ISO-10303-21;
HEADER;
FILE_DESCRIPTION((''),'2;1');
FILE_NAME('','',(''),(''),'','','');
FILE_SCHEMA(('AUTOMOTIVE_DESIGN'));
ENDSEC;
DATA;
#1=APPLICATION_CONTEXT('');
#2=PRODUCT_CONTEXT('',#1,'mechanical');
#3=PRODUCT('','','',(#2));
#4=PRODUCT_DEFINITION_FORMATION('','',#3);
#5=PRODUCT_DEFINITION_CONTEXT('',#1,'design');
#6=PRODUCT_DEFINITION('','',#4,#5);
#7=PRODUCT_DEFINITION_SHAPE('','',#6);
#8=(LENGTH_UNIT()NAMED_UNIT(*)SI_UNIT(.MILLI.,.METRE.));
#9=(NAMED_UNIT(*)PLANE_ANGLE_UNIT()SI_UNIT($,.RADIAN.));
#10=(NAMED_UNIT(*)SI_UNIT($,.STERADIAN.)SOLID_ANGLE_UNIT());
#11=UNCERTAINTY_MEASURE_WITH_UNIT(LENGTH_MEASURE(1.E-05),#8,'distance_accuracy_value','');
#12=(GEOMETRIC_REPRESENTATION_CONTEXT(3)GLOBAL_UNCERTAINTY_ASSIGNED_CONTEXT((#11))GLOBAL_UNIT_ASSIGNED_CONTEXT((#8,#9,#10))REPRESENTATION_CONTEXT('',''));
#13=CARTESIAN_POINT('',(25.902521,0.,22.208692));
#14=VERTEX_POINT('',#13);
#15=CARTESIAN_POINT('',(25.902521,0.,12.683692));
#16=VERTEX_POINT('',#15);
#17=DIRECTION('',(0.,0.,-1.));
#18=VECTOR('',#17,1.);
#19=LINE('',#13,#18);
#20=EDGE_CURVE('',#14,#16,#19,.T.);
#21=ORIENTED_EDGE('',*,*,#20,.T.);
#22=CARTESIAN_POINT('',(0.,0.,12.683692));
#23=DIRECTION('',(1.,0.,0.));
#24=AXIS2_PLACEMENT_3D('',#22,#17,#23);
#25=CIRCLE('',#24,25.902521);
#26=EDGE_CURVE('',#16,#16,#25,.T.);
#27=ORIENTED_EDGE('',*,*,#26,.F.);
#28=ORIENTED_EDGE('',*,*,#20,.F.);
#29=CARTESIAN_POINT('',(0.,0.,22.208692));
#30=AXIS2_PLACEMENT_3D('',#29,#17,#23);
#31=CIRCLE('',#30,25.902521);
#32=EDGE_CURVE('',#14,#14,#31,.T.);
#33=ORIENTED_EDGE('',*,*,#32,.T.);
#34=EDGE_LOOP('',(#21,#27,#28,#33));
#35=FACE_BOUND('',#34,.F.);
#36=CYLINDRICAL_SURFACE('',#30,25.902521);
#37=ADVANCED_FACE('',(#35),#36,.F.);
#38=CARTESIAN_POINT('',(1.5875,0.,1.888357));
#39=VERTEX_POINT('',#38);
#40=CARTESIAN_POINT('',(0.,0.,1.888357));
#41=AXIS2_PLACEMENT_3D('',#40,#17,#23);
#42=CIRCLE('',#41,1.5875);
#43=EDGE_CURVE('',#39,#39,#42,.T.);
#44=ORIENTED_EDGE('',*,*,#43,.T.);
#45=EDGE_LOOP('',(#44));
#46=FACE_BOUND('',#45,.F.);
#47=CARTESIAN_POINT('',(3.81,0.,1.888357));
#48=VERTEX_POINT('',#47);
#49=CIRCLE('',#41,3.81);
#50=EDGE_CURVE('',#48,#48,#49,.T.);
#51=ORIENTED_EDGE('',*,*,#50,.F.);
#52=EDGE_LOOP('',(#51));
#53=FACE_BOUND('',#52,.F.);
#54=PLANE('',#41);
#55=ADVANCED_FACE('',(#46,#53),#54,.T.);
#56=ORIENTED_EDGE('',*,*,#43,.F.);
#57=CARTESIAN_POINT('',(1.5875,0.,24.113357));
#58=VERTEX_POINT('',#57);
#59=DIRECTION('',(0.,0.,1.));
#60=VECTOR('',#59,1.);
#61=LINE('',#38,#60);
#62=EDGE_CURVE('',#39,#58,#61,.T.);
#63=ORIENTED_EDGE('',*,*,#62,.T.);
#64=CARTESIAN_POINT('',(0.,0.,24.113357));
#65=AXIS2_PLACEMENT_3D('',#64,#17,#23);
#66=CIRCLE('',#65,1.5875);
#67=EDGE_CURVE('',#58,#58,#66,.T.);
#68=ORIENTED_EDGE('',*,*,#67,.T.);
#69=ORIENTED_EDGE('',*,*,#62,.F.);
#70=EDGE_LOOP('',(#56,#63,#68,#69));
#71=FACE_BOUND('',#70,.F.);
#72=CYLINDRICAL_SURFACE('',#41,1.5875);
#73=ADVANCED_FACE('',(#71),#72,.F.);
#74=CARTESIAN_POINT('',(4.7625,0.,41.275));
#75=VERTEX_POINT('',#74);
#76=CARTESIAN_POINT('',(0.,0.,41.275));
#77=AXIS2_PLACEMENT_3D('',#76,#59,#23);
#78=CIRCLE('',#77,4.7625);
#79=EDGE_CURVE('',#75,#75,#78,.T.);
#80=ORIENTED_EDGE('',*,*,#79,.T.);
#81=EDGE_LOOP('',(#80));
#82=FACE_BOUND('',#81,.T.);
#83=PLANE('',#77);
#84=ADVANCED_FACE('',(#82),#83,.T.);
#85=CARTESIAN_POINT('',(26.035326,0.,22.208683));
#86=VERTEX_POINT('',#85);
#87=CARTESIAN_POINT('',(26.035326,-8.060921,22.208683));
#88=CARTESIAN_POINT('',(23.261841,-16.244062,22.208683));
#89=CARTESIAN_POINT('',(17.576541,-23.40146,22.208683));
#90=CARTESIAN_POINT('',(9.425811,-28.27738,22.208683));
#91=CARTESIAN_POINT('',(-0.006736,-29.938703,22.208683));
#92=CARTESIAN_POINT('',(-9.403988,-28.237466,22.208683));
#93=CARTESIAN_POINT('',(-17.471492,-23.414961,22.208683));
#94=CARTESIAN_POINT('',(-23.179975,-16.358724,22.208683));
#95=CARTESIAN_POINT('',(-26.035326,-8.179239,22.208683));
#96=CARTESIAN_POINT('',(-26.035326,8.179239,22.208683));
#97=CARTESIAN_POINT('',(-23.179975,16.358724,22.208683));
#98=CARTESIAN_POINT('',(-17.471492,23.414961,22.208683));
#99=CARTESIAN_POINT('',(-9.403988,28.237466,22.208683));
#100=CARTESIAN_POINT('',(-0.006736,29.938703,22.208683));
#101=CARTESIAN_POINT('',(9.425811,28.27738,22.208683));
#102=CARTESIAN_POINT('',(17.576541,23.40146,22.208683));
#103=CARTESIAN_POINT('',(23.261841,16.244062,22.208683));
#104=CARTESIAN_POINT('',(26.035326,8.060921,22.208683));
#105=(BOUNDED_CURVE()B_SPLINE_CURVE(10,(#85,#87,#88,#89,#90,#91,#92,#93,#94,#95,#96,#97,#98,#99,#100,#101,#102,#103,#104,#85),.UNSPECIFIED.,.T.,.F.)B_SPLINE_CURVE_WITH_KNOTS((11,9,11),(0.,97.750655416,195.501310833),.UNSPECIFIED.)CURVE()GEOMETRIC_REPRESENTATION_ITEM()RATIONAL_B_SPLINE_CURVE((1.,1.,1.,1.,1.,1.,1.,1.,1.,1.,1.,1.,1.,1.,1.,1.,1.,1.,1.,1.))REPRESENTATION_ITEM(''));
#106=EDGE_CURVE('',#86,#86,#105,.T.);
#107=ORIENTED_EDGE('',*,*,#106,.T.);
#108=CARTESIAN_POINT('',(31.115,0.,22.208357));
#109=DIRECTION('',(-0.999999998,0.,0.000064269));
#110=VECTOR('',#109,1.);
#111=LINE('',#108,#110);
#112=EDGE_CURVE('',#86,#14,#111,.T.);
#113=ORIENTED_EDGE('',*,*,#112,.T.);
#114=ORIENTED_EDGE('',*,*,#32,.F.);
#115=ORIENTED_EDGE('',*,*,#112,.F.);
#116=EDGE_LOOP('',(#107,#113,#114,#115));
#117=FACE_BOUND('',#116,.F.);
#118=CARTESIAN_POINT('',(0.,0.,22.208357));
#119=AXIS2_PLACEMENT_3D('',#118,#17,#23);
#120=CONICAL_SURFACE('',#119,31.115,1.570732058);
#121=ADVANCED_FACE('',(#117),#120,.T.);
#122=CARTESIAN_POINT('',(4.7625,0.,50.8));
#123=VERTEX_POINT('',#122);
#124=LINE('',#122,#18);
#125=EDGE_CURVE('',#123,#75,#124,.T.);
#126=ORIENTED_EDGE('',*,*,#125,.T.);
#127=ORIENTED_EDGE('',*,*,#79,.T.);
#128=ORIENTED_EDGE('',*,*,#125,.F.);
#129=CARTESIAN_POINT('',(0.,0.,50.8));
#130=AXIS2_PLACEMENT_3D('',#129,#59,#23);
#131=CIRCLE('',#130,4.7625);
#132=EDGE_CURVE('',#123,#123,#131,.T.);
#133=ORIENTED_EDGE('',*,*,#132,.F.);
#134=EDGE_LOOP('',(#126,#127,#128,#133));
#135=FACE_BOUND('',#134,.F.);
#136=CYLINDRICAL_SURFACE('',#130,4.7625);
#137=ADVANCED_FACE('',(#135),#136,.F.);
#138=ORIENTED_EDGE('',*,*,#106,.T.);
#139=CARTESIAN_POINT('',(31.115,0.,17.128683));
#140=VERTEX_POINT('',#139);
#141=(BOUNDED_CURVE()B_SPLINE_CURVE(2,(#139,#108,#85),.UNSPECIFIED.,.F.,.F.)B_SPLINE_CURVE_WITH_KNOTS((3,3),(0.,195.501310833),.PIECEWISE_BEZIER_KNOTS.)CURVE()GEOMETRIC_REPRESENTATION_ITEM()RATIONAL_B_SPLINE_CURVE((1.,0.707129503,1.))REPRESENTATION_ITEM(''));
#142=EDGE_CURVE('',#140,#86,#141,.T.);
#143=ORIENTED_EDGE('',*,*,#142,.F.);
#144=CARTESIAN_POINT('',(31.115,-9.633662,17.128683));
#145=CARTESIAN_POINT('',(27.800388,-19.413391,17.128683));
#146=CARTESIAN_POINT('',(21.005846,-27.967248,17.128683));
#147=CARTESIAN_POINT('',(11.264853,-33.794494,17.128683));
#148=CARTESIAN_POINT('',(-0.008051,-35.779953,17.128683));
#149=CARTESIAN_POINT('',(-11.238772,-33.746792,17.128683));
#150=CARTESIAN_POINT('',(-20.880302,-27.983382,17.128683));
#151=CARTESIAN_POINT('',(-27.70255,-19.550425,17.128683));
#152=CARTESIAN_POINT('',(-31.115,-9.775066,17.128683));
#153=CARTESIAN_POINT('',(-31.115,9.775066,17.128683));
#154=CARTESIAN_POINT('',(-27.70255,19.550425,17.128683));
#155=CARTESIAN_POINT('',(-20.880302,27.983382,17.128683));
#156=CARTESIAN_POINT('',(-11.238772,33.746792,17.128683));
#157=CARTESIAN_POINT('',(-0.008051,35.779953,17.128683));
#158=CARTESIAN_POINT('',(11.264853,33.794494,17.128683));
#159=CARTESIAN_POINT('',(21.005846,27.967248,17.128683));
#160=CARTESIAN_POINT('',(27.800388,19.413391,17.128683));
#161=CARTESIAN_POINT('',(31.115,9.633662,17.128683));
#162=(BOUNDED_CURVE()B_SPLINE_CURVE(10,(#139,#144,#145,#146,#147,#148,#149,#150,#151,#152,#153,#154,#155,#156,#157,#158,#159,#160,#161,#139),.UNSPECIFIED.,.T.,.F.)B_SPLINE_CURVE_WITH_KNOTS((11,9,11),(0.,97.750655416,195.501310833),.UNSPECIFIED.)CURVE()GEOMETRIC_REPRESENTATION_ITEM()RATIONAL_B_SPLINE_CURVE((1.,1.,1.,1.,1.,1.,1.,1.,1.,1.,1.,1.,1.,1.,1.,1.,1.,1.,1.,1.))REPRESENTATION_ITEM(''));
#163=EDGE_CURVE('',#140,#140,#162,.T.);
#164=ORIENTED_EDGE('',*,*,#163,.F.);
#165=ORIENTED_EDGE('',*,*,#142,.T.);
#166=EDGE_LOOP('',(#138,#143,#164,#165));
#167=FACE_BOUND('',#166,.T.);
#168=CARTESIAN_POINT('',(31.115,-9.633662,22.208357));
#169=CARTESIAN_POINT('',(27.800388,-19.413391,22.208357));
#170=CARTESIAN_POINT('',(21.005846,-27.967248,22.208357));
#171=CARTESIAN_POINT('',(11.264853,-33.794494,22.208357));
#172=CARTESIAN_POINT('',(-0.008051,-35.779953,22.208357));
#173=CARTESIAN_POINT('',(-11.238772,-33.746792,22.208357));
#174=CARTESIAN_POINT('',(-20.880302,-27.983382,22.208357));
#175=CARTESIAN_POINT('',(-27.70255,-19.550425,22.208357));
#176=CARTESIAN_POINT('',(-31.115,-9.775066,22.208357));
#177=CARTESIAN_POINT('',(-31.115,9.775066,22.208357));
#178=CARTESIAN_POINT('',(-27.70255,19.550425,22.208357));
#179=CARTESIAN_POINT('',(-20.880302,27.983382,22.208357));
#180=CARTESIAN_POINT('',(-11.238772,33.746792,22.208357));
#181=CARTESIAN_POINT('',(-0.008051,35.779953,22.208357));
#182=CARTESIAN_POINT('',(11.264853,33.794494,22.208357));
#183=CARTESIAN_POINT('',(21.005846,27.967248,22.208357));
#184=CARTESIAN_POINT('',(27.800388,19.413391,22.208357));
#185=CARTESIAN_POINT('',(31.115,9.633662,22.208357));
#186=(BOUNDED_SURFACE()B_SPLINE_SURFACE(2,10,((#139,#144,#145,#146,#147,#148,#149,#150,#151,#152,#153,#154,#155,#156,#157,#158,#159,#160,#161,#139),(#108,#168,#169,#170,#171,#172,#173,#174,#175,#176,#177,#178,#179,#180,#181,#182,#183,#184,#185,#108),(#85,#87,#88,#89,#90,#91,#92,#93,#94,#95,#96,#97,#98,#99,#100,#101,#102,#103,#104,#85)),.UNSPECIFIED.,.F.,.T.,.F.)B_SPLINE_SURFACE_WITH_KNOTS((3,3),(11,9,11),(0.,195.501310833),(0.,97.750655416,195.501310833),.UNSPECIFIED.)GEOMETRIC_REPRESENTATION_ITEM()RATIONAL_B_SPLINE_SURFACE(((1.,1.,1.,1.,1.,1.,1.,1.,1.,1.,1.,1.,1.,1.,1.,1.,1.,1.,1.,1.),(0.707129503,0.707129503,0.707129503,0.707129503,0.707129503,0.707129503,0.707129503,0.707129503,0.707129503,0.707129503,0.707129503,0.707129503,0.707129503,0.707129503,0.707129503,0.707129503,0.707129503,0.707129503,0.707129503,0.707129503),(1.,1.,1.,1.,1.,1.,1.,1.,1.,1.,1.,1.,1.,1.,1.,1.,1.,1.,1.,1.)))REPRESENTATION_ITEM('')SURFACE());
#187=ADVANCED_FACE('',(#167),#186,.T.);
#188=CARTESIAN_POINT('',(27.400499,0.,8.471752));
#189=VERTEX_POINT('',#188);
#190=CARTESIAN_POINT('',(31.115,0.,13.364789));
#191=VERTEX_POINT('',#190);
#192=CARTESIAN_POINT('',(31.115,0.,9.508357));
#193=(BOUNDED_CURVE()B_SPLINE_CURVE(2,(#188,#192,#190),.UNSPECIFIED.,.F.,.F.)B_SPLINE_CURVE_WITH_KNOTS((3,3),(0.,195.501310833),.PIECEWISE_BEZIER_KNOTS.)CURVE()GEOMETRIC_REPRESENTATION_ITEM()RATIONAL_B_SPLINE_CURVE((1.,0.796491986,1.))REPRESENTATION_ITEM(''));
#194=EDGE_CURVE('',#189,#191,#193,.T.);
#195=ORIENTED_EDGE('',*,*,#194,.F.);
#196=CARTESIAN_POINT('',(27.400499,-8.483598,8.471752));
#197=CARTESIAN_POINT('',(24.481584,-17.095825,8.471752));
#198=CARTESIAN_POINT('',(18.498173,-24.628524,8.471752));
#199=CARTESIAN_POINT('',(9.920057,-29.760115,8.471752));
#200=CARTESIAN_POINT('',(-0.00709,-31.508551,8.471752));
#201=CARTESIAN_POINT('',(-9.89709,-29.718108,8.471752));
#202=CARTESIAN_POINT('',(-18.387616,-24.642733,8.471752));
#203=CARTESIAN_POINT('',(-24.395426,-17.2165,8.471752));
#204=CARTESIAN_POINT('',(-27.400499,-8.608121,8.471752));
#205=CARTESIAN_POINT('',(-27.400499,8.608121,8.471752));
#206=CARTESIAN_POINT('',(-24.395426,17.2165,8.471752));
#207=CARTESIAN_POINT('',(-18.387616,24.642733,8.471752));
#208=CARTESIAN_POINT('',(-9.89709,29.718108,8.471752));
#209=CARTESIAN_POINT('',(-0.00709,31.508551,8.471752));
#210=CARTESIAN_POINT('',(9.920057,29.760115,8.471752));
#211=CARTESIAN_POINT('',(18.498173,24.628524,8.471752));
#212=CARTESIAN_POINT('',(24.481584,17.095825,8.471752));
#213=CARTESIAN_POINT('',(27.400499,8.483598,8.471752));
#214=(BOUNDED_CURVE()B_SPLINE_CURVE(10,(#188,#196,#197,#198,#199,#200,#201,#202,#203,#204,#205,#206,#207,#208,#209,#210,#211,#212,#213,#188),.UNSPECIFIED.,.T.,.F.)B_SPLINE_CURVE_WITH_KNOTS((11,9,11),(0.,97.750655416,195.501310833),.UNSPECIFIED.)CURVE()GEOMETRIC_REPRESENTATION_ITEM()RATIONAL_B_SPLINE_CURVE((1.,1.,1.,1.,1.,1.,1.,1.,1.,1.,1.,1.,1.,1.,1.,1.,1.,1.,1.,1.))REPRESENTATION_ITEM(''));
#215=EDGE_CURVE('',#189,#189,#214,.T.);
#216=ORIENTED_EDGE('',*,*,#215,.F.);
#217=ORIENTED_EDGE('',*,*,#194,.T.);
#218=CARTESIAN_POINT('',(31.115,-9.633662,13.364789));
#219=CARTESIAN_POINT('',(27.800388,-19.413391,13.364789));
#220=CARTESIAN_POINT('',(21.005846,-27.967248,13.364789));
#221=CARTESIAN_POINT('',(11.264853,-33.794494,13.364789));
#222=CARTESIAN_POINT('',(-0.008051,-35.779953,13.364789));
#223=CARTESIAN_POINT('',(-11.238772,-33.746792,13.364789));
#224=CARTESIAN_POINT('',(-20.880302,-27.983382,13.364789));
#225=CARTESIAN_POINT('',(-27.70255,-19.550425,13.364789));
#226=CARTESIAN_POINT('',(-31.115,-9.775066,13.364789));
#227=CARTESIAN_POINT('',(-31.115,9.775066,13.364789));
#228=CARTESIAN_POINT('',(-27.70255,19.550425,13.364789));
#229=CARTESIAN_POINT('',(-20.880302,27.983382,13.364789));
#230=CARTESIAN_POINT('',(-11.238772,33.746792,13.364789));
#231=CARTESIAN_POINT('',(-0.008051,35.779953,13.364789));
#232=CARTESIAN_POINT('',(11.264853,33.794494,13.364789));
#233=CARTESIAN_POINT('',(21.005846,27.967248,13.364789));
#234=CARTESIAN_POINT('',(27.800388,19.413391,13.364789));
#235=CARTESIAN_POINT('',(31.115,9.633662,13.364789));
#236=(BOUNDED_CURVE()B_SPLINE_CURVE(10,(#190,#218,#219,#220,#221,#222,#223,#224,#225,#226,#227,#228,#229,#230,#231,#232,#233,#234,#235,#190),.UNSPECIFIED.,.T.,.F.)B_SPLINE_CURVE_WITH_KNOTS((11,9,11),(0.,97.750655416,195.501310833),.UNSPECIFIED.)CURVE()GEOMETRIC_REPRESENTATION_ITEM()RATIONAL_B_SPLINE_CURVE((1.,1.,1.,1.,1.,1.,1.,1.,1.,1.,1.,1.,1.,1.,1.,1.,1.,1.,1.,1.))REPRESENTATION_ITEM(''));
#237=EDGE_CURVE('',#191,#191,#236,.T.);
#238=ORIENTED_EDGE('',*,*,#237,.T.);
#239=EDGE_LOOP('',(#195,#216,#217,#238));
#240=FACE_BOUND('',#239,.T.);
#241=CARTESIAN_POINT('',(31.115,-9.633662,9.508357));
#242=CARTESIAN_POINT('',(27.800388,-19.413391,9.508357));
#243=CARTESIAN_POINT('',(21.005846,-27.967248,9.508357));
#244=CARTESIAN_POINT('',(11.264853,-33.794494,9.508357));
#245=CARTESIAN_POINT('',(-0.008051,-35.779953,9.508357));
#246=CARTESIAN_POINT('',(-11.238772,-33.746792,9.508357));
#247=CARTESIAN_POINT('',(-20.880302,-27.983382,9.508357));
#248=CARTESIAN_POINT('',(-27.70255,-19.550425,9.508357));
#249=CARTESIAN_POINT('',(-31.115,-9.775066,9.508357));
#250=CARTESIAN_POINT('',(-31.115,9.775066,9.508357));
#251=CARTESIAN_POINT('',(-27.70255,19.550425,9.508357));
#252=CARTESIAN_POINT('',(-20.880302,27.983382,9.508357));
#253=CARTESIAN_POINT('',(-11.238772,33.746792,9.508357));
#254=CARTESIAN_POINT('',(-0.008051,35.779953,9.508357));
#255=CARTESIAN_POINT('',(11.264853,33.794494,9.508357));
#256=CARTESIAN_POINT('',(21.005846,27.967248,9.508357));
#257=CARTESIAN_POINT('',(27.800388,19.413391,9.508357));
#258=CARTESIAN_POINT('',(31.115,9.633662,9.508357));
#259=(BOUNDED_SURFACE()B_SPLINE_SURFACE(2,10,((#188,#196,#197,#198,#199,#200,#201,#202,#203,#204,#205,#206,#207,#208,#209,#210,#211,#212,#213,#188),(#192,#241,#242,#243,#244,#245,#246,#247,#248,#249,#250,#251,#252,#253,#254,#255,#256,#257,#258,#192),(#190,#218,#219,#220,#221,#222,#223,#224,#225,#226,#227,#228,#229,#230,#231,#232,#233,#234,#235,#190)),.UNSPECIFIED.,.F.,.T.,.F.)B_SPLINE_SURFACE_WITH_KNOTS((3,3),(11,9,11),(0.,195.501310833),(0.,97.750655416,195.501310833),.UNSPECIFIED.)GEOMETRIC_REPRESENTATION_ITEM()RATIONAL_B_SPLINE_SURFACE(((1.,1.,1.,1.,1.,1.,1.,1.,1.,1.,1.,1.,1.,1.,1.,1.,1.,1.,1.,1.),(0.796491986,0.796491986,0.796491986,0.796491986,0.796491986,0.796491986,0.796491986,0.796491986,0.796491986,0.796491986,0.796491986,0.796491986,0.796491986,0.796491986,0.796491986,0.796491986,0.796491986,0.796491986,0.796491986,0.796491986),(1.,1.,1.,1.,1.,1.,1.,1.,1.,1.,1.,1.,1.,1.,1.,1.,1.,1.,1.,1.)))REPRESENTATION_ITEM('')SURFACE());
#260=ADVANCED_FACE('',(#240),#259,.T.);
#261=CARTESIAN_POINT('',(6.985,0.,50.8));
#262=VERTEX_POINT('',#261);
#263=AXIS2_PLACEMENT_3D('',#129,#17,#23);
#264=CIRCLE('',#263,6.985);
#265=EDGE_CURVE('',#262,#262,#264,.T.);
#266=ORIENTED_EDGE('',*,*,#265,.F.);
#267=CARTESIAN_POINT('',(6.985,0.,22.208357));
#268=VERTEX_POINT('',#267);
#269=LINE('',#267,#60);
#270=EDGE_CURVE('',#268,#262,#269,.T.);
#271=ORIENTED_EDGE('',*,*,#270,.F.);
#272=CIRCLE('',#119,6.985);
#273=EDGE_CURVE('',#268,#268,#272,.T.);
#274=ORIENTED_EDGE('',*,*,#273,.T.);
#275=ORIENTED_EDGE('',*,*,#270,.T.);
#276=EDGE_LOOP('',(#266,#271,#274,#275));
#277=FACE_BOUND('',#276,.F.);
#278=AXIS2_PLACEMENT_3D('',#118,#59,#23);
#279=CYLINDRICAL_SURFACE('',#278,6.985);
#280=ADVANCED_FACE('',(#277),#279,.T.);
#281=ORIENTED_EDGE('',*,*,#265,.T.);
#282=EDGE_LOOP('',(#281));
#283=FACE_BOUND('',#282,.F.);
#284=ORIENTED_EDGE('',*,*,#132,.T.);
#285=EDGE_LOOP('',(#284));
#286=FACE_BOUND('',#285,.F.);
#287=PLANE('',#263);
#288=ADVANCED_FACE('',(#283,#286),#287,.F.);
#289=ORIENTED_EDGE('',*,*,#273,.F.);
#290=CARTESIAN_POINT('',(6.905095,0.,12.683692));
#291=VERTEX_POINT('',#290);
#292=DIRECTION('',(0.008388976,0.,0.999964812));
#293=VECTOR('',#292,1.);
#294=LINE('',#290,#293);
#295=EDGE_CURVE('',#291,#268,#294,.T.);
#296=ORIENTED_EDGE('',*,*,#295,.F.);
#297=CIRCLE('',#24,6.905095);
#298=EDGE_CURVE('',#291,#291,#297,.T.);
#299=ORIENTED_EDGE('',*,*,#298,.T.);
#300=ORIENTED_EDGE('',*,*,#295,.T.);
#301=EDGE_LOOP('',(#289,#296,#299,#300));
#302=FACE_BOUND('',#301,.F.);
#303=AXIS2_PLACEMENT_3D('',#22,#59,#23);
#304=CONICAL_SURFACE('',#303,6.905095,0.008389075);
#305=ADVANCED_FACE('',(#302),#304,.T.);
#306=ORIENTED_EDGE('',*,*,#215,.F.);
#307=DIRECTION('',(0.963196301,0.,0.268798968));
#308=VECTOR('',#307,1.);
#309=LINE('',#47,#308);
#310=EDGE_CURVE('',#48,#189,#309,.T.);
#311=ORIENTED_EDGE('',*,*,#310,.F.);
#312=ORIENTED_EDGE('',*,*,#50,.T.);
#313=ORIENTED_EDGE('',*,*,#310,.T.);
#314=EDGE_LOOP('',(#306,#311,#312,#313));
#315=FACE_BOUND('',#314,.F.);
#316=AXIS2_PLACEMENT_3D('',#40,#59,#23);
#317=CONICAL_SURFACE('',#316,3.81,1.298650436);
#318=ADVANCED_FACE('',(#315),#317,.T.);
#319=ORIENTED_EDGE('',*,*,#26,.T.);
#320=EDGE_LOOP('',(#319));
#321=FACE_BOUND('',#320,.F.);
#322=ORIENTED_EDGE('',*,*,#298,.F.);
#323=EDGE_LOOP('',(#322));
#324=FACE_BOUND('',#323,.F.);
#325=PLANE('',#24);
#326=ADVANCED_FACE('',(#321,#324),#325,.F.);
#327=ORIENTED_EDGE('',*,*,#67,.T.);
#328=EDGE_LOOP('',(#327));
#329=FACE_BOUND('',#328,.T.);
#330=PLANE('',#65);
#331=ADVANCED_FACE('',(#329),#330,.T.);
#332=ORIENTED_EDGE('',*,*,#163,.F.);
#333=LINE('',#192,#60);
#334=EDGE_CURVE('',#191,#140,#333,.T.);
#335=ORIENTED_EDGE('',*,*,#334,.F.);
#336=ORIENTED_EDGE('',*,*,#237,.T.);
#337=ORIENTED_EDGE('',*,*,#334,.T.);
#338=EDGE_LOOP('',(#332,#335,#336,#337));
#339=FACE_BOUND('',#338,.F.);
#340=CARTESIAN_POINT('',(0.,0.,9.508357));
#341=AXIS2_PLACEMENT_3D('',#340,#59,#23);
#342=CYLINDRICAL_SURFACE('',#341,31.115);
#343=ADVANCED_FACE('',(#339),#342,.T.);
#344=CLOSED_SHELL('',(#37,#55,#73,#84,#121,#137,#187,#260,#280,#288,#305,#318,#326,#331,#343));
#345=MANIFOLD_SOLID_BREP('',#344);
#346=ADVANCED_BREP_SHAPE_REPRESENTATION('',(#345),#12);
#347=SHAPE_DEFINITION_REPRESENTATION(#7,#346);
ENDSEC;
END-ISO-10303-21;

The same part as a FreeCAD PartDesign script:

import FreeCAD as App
import Part
import Sketcher

V = App.Vector
Q = App.Units.Quantity


def edges_at(feature, points):
    """Names of the edges that pass closest to the given points."""
    edges = feature.Shape.Edges
    near = lambda p: min(range(len(edges)), key=lambda i: edges[i].distToShape(Part.Vertex(*p))[0])
    return sorted({f"Edge{near(p) + 1}" for p in points})


def add_polygon(sketch, points):
    """Adds a closed chain of lines whose ends are joined by coincident constraints."""
    first, n = sketch.GeometryCount, len(points)
    for a, b in zip(points, points[1:] + points[:1]):
        sketch.addGeometry(Part.LineSegment(App.Vector(*a, 0), App.Vector(*b, 0)), False)
    for i in range(n):
        sketch.addConstraint(Sketcher.Constraint("Coincident", first + i, 2, first + (i + 1) % n, 1))

doc = App.newDocument("Part")
body = doc.addObject("PartDesign::Body", "Body")

# Sketch on XZ plane
sketch1 = body.newObject("Sketcher::SketchObject", "Sketch")
sketch1.AttachmentSupport = (doc.getObject("XZ_Plane"), [""])
sketch1.MapMode = "FlatFace"
add_polygon(sketch1, [(3.8, 1.9), (31.1, 9.5), (31.1, 22.2), (25.9, 22.2), (25.9, 12.7), (6.9, 12.7), (7, 22.2), (7, 50.8), (0, 50.8), (0, 1.9)])  # lines 0-9
sketch1.addConstraint([
    Sketcher.Constraint("Vertical", 1),
    Sketcher.Constraint("Vertical", 3),
    Sketcher.Constraint("Horizontal", 4),
    Sketcher.Constraint("Vertical", 6),
    Sketcher.Constraint("Horizontal", 7),
    Sketcher.Constraint("Vertical", 8),
    Sketcher.Constraint("Horizontal", 9),
    Sketcher.Constraint("PointOnObject", 7, 2, -2),
    Sketcher.Constraint("Horizontal", 1, 2, 5, 2),
    Sketcher.Constraint("DistanceY", 1, 1, 1, 2, Q("0.5 in")),
    Sketcher.Constraint("DistanceY", -1, 1, 6, 2, Q("2 in")),
    Sketcher.Constraint("DistanceX", 9, 1, 9, 2, Q("0.15 in")),
    Sketcher.Constraint("DistanceY", 8, 2, 5, 2, Q("0.8 in")),
    Sketcher.Constraint("DistanceX", 7, 2, 7, 1, Q("0.275 in")),
    Sketcher.Constraint("DistanceY", 3, 2, 3, 1, Q("0.375 in")),
    Sketcher.Constraint("DistanceX", 5, 2, 1, 2, Q("0.95 in")),
    Sketcher.Constraint("Distance", 5, Q("0.375 in")),
    Sketcher.Constraint("Distance", 2, Q("5.212479 mm")),
    Sketcher.Constraint("DistanceX", 4, 2, 4, 1, Q("18.997426 mm")),
    Sketcher.Constraint("DistanceY", 6, 1, 6, 2, Q("28.591643 mm")),
])
revolution = body.newObject("PartDesign::Revolution", "Revolution")
revolution.Profile = sketch1
revolution.ReferenceAxis = (sketch1, ["V_Axis"])
revolution.Angle = 360

# Sketch on XY plane
sketch2 = body.newObject("Sketcher::SketchObject", "Sketch001")
sketch2.AttachmentSupport = (doc.getObject("XY_Plane"), [""])
sketch2.MapMode = "FlatFace"
sketch2.AttachmentOffset = App.Placement(V(0, 0, 2 * 25.4), App.Rotation())
sketch2.addGeometry(Part.Circle(V(0, 0, 0), V(0, 0, 1), 4.8), False)
sketch2.addConstraint([
    Sketcher.Constraint("Coincident", 0, 3, -1, 1),
    Sketcher.Constraint("Diameter", 0, Q("0.375 in")),
])
pocket1 = body.newObject("PartDesign::Pocket", "Pocket")
pocket1.Profile = sketch2
pocket1.Length = Q("0.375 in")

# Sketch on XY plane
sketch3 = body.newObject("Sketcher::SketchObject", "Sketch002")
sketch3.AttachmentSupport = (doc.getObject("XY_Plane"), [""])
sketch3.MapMode = "FlatFace"
sketch3.AttachmentOffset = App.Placement(V(0, 0, 1.888357), App.Rotation())
sketch3.addGeometry(Part.Circle(V(0, 0, 0), V(0, 0, 1), 1.6), False)
sketch3.addConstraint([
    Sketcher.Constraint("Coincident", 0, 3, -1, 1),
    Sketcher.Constraint("Diameter", 0, Q("0.125 in")),
])
pocket2 = body.newObject("PartDesign::Pocket", "Pocket001")
pocket2.Profile = sketch3
pocket2.Length = Q("0.875 in")
pocket2.Reversed = True
doc.recompute()

fillet = body.newObject("PartDesign::Fillet", "Fillet")
fillet.Base = (pocket2, edges_at(pocket2, [(-31.115, 0, 9.508), (-31.115, 0, 22.208), (31.115, 0, 15.858)]))
fillet.Radius = Q("0.2 in")

doc.recompute()
